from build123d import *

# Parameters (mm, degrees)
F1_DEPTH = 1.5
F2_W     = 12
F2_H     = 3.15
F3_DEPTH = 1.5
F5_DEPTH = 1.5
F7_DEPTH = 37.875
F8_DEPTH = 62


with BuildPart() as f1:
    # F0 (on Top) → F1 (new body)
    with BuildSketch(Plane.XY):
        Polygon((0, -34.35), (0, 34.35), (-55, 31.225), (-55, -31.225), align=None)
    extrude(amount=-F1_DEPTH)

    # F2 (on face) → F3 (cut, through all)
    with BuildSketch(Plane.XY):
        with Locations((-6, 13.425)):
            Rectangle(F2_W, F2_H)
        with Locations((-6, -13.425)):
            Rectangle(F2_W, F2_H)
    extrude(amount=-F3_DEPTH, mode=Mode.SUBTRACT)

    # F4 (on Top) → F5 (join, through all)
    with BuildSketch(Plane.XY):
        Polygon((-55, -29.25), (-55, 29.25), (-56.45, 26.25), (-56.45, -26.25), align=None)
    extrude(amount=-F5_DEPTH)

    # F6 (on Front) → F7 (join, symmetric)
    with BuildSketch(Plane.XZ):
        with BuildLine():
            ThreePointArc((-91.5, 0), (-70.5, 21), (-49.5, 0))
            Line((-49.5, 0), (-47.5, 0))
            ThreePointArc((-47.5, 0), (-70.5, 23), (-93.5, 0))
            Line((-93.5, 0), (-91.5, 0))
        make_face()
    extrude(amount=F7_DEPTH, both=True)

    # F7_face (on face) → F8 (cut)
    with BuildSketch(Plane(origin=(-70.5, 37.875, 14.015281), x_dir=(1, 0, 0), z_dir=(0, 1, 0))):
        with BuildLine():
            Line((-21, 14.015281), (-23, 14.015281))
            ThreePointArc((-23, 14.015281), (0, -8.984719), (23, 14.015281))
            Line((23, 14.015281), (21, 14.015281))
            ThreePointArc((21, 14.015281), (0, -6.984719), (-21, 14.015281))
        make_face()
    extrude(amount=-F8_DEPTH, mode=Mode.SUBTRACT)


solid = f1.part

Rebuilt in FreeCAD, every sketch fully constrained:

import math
import FreeCAD as App
import Part
import Sketcher
from FreeCAD import Vector
Q = App.Units.Quantity


def add_polygon(sketch, points):
    """Adds a closed chain of lines whose ends are joined by coincident constraints."""
    first, n = sketch.GeometryCount, len(points)
    for a, b in zip(points, points[1:] + points[:1]):
        sketch.addGeometry(Part.LineSegment(App.Vector(*a, 0), App.Vector(*b, 0)), False)
    for i in range(n):
        sketch.addConstraint(Sketcher.Constraint("Coincident", first + i, 2, first + (i + 1) % n, 1))

doc = App.newDocument("Part")
body = doc.addObject("PartDesign::Body", "Body")

sketch1 = doc.addObject("Sketcher::SketchObject", "Sketch")
body.addObject(sketch1)
sketch1.AttachmentSupport = (doc.XY_Plane, [""])
sketch1.MapMode = "FlatFace"
add_polygon(sketch1, [(0, -34.35), (0, 34.35), (-55, 31.225), (-55, -31.225)])
sketch1.addConstraint([
    Sketcher.Constraint("Vertical", 0),
    Sketcher.Constraint("Vertical", 2),
    Sketcher.Constraint("Symmetric", 0, 2, 3, 2, -1, 1),
    Sketcher.Constraint("Equal", 1, 3),
    Sketcher.Constraint("DistanceY", 0, 1, 0, 2, Q("68.7 mm")),
    Sketcher.Constraint("DistanceX", 1, 2, -1, 1, Q("55 mm")),
    Sketcher.Constraint("DistanceY", 2, 2, 2, 1, Q("62.45 mm")),
])
pad1 = doc.addObject("PartDesign::Pad", "Pad")
body.addObject(pad1)
pad1.Profile = sketch1
pad1.Length = 1.5
pad1.Reversed = True

sketch2 = doc.addObject("Sketcher::SketchObject", "Sketch001")
body.addObject(sketch2)
sketch2.AttachmentSupport = (doc.XY_Plane, [""])
sketch2.MapMode = "FlatFace"
add_polygon(sketch2, [(-12, 15), (-12, 11.85), (0, 11.85), (0, 15)])
add_polygon(sketch2, [(-12, -11.85), (-12, -15), (0, -15), (0, -11.85)])
sketch2.addConstraint([
    Sketcher.Constraint("Vertical", 0),
    Sketcher.Constraint("Horizontal", 1),
    Sketcher.Constraint("Vertical", 2),
    Sketcher.Constraint("Horizontal", 3),
    Sketcher.Constraint("Vertical", 4),
    Sketcher.Constraint("Horizontal", 5),
    Sketcher.Constraint("Vertical", 6),
    Sketcher.Constraint("Horizontal", 7),
    Sketcher.Constraint("Symmetric", 2, 2, 5, 2, -1, 1),
    Sketcher.Constraint("Symmetric", 1, 2, 6, 2, -1),
    Sketcher.Constraint("Vertical", 3, 2, 4, 2),
    Sketcher.Constraint("DistanceX", 1, 1, 1, 2, Q("12 mm")),
    Sketcher.Constraint("DistanceY", -1, 1, 2, 2, Q("15 mm")),
    Sketcher.Constraint("DistanceY", 0, 2, 0, 1, Q("3.15 mm")),
])
pocket1 = doc.addObject("PartDesign::Pocket", "Pocket")
body.addObject(pocket1)
pocket1.Profile = sketch2
pocket1.Type = "ThroughAll"

sketch3 = doc.addObject("Sketcher::SketchObject", "Sketch002")
body.addObject(sketch3)
sketch3.AttachmentSupport = (doc.XY_Plane, [""])
sketch3.MapMode = "FlatFace"
add_polygon(sketch3, [(-55, -29.25), (-55, 29.25), (-56.45, 26.25), (-56.45, -26.25)])
sketch3.addConstraint([
    Sketcher.Constraint("Vertical", 0),
    Sketcher.Constraint("Vertical", 2),
    Sketcher.Constraint("Equal", 1, 3),
    Sketcher.Constraint("DistanceY", 0, 1, 0, 2, Q("58.5 mm")),
    Sketcher.Constraint("DistanceY", 2, 2, 2, 1, Q("52.5 mm")),
    Sketcher.Constraint("DistanceX", 0, 2, -1, 1, Q("55 mm")),
    Sketcher.Constraint("DistanceY", -1, 1, 0, 2, Q("29.25 mm")),
    Sketcher.Constraint("DistanceX", 1, 2, -1, 1, Q("56.45 mm")),
])
pad2 = doc.addObject("PartDesign::Pad", "Pad001")
body.addObject(pad2)
pad2.Profile = sketch3
pad2.Length = 1.5
pad2.Reversed = True

sketch4 = doc.addObject("Sketcher::SketchObject", "Sketch003")
body.addObject(sketch4)
sketch4.AttachmentSupport = (doc.XZ_Plane, [""])
sketch4.MapMode = "FlatFace"
sketch4.addGeometry([
    Part.ArcOfCircle(Part.Circle(Vector(-70.5, 0, 0), Vector(0, 0, 1), 21), math.radians(0), math.radians(180)),
    Part.LineSegment(Vector(-49.5, 0, 0), Vector(-47.5, 0, 0)),
    Part.ArcOfCircle(Part.Circle(Vector(-70.5, 0, 0), Vector(0, 0, 1), 23), math.radians(0), math.radians(180)),
    Part.LineSegment(Vector(-93.5, 0, 0), Vector(-91.5, 0, 0)),
], False)
sketch4.addConstraint([
    Sketcher.Constraint("Coincident", 0, 1, 1, 1),
    Sketcher.Constraint("Coincident", 1, 2, 2, 1),
    Sketcher.Constraint("Coincident", 2, 2, 3, 1),
    Sketcher.Constraint("Coincident", 3, 2, 0, 2),
    Sketcher.Constraint("Horizontal", 1),
    Sketcher.Constraint("Horizontal", 3),
    Sketcher.Constraint("Coincident", 2, 3, 0, 3),
    Sketcher.Constraint("PointOnObject", 0, 3, -1),
    Sketcher.Constraint("PointOnObject", 0, 1, -1),
    Sketcher.Constraint("PointOnObject", 2, 2, -1),
    Sketcher.Constraint("Radius", 0, Q("21 mm")),
    Sketcher.Constraint("Radius", 2, Q("23 mm")),
    Sketcher.Constraint("DistanceX", 0, 3, -1, 1, Q("70.5 mm")),
])
pad3 = doc.addObject("PartDesign::Pad", "Pad002")
body.addObject(pad3)
pad3.Profile = sketch4
pad3.Length = 75.75
pad3.Midplane = True

sketch5 = doc.addObject("Sketcher::SketchObject", "Sketch004")
body.addObject(sketch5)
sketch5.AttachmentSupport = (doc.XZ_Plane, [""])
sketch5.MapMode = "FlatFace"
sketch5.AttachmentOffset = App.Placement(Vector(0, 0, -37.875), App.Rotation())
sketch5.addGeometry([
    Part.LineSegment(Vector(-91.5, 0, 0), Vector(-93.5, 0, 0)),
    Part.ArcOfCircle(Part.Circle(Vector(-70.5, 0, 0), Vector(0, 0, 1), 23), math.radians(0), math.radians(180)),
    Part.LineSegment(Vector(-47.5, 0, 0), Vector(-49.5, 0, 0)),
    Part.ArcOfCircle(Part.Circle(Vector(-70.5, 0, 0), Vector(0, 0, 1), 21), math.radians(0), math.radians(180)),
], False)
sketch5.addConstraint([
    Sketcher.Constraint("Coincident", 0, 2, 1, 2),
    Sketcher.Constraint("Coincident", 1, 1, 2, 1),
    Sketcher.Constraint("Coincident", 2, 2, 3, 1),
    Sketcher.Constraint("Coincident", 3, 2, 0, 1),
    Sketcher.Constraint("Horizontal", 0),
    Sketcher.Constraint("Horizontal", 2),
    Sketcher.Constraint("Coincident", 3, 3, 1, 3),
    Sketcher.Constraint("PointOnObject", 1, 3, -1),
    Sketcher.Constraint("PointOnObject", 0, 2, -1),
    Sketcher.Constraint("PointOnObject", 1, 1, -1),
    Sketcher.Constraint("Radius", 1, Q("23 mm")),
    Sketcher.Constraint("Radius", 3, Q("21 mm")),
    Sketcher.Constraint("DistanceX", 1, 3, -1, 1, Q("70.5 mm")),
])
pocket2 = doc.addObject("PartDesign::Pocket", "Pocket001")
body.addObject(pocket2)
pocket2.Profile = sketch5
pocket2.Length = 62
pocket2.Reversed = True

doc.recompute()
